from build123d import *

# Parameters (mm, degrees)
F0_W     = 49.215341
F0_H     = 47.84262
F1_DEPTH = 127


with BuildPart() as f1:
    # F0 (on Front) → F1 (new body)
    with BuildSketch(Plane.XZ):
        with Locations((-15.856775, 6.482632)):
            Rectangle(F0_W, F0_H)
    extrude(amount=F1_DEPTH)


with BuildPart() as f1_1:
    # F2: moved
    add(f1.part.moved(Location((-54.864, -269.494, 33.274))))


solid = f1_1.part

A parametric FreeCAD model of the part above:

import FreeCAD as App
import Part
import Sketcher
Q = App.Units.Quantity


def add_polygon(sketch, points):
    """Adds a closed chain of lines whose ends are joined by coincident constraints."""
    first, n = sketch.GeometryCount, len(points)
    for a, b in zip(points, points[1:] + points[:1]):
        sketch.addGeometry(Part.LineSegment(App.Vector(*a, 0), App.Vector(*b, 0)), False)
    for i in range(n):
        sketch.addConstraint(Sketcher.Constraint("Coincident", first + i, 2, first + (i + 1) % n, 1))

doc = App.newDocument("Part")
body = doc.addObject("PartDesign::Body", "Body")

sketch1 = body.newObject("Sketcher::SketchObject", "Sketch")
sketch1.AttachmentSupport = (doc.getObject("XZ_Plane"), [""])
sketch1.MapMode = "FlatFace"
add_polygon(sketch1, [(-40, 30), (-40, -17), (9, -17), (9, 30)])
sketch1.addConstraint(Sketcher.Constraint("Vertical", 0))
sketch1.addConstraint(Sketcher.Constraint("Horizontal", 1))
sketch1.addConstraint(Sketcher.Constraint("Vertical", 2))
sketch1.addConstraint(Sketcher.Constraint("Horizontal", 3))
sketch1.addConstraint(Sketcher.Constraint("DistanceX", 1, 1, 1, 2, 49.215341))
sketch1.addConstraint(Sketcher.Constraint("DistanceY", 0, 2, 0, 1, 47.84262))
sketch1.addConstraint(Sketcher.Constraint("DistanceX", 0, 2, -1, 1, 40.464445))
sketch1.addConstraint(Sketcher.Constraint("DistanceY", 0, 2, -1, 1, 17.438678))
pad1 = body.newObject("PartDesign::Pad", "Pad")
pad1.Profile = sketch1
pad1.Length = Q("5 in")
body2 = doc.addObject("PartDesign::Body", "Body001")
doc.recompute()

body.Placement = App.Placement(App.Vector(-54.864, -269.494, 33.274), App.Rotation(App.Vector(0, 0, 1), 0))
boolean = body2.newObject("PartDesign::Boolean", "Boolean")
boolean.Type = "Fuse"
boolean.addObjects([body])

doc.recompute()
